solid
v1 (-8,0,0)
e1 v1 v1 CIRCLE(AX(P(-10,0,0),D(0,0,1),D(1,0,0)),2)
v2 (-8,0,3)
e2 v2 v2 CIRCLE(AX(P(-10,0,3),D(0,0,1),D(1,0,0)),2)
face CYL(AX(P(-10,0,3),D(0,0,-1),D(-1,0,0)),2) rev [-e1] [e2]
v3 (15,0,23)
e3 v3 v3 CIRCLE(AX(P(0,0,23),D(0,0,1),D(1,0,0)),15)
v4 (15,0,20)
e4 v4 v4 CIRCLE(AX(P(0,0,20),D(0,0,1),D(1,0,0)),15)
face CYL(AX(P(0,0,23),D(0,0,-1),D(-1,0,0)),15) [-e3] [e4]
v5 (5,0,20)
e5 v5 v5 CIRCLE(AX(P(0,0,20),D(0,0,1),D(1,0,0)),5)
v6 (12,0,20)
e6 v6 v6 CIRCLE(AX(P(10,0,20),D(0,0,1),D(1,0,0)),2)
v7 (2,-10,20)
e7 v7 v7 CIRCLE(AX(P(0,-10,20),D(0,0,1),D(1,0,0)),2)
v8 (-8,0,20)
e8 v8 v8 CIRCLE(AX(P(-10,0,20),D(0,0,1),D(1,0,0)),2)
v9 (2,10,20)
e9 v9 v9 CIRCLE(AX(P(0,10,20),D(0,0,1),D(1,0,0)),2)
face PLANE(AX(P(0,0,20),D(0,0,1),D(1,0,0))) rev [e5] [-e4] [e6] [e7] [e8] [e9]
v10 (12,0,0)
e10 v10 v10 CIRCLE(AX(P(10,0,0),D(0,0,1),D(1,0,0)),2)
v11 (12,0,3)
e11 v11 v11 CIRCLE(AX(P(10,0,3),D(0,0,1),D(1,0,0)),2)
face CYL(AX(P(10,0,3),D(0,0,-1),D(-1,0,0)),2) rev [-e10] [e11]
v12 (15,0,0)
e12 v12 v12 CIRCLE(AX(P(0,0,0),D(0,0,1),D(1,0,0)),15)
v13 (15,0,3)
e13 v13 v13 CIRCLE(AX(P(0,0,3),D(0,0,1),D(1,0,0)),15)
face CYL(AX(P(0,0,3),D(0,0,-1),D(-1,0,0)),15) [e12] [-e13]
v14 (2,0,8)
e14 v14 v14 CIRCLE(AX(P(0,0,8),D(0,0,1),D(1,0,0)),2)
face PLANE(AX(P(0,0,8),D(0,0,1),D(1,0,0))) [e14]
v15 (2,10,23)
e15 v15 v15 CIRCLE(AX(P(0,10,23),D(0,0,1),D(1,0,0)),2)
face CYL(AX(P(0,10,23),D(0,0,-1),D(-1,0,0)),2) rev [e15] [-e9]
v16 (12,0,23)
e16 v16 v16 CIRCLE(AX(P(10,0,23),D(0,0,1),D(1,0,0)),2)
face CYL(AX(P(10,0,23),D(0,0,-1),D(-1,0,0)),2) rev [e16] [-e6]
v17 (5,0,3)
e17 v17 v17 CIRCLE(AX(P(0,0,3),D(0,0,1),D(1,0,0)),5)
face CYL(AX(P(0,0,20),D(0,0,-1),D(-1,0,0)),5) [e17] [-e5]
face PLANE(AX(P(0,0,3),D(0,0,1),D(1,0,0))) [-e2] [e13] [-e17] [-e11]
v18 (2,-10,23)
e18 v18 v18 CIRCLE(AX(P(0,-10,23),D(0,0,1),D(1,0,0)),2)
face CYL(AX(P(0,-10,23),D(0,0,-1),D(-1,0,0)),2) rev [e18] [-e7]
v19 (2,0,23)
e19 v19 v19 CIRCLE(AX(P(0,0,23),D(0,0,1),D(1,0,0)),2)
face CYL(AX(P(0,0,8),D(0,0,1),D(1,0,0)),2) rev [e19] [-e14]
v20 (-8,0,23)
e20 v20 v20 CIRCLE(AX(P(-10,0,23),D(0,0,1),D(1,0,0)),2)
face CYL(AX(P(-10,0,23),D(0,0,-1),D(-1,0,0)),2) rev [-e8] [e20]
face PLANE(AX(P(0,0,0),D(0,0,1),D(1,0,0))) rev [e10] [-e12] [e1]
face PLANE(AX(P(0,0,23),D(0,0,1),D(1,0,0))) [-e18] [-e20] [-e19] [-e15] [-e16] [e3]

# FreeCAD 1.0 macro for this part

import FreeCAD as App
import Part
import Sketcher
Q = App.Units.Quantity

doc = App.newDocument("Part")
body = doc.addObject("PartDesign::Body", "Body")

# Sketch on XY plane
sketch1 = doc.addObject("Sketcher::SketchObject", "Sketch")
body.addObject(sketch1)
sketch1.AttachmentSupport = (doc.XY_Plane, [""])
sketch1.MapMode = "FlatFace"
sketch1.addGeometry(Part.Circle(App.Vector(0, 0, 0), App.Vector(0, 0, 1), 15), False)
sketch1.addGeometry(Part.Circle(App.Vector(-10, 0, 0), App.Vector(0, 0, 1), 2), False)
sketch1.addGeometry(Part.Circle(App.Vector(10, 0, 0), App.Vector(0, 0, 1), 2), False)
sketch1.addConstraint(Sketcher.Constraint("Coincident", 0, 3, -1, 1))
sketch1.addConstraint(Sketcher.Constraint("Equal", 1, 2))
sketch1.addConstraint(Sketcher.Constraint("Symmetric", 1, 3, 2, 3, -1, 1))
sketch1.addConstraint(Sketcher.Constraint("PointOnObject", 1, 3, -1))
sketch1.addConstraint(Sketcher.Constraint("Diameter", 0, Q("30 mm")))
sketch1.addConstraint(Sketcher.Constraint("Diameter", 1, Q("4 mm")))
sketch1.addConstraint(Sketcher.Constraint("DistanceX", 1, 3, -1, 1, Q("10 mm")))
pad1 = doc.addObject("PartDesign::Pad", "Pad")
body.addObject(pad1)
pad1.Profile = sketch1
pad1.Length = 3

# Sketch on XY plane
sketch2 = doc.addObject("Sketcher::SketchObject", "Sketch001")
body.addObject(sketch2)
sketch2.AttachmentSupport = (doc.XY_Plane, [""])
sketch2.MapMode = "FlatFace"
sketch2.AttachmentOffset = App.Placement(App.Vector(0, 0, 3), App.Rotation())
sketch2.addGeometry(Part.Circle(App.Vector(0, 0, 0), App.Vector(0, 0, 1), 5), False)
sketch2.addConstraint(Sketcher.Constraint("Coincident", 0, 3, -1, 1))
sketch2.addConstraint(Sketcher.Constraint("Diameter", 0, Q("10 mm")))
pad2 = doc.addObject("PartDesign::Pad", "Pad001")
body.addObject(pad2)
pad2.Profile = sketch2
pad2.Length = 17

# Sketch on XY plane
sketch3 = doc.addObject("Sketcher::SketchObject", "Sketch002")
body.addObject(sketch3)
sketch3.AttachmentSupport = (doc.XY_Plane, [""])
sketch3.MapMode = "FlatFace"
sketch3.AttachmentOffset = App.Placement(App.Vector(0, 0, 20), App.Rotation())
sketch3.addGeometry(Part.Circle(App.Vector(0, 0, 0), App.Vector(0, 0, 1), 15), False)
sketch3.addGeometry(Part.Circle(App.Vector(0, -10, 0), App.Vector(0, 0, 1), 2), False)
sketch3.addGeometry(Part.Circle(App.Vector(-10, 0, 0), App.Vector(0, 0, 1), 2), False)
sketch3.addGeometry(Part.Circle(App.Vector(10, 0, 0), App.Vector(0, 0, 1), 2), False)
sketch3.addGeometry(Part.Circle(App.Vector(0, 10, 0), App.Vector(0, 0, 1), 2), False)
sketch3.addConstraint(Sketcher.Constraint("Coincident", 0, 3, -1, 1))
sketch3.addConstraint(Sketcher.Constraint("Equal", 1, 2))
sketch3.addConstraint(Sketcher.Constraint("Equal", 2, 3))
sketch3.addConstraint(Sketcher.Constraint("Equal", 3, 4))
sketch3.addConstraint(Sketcher.Constraint("Symmetric", 2, 3, 3, 3, -1, 1))
sketch3.addConstraint(Sketcher.Constraint("Symmetric", 1, 3, 4, 3, -1, 1))
sketch3.addConstraint(Sketcher.Constraint("PointOnObject", 1, 3, -2))
sketch3.addConstraint(Sketcher.Constraint("PointOnObject", 2, 3, -1))
sketch3.addConstraint(Sketcher.Constraint("Diameter", 0, Q("30 mm")))
sketch3.addConstraint(Sketcher.Constraint("Diameter", 1, Q("4 mm")))
sketch3.addConstraint(Sketcher.Constraint("DistanceY", 1, 3, -1, 1, Q("10 mm")))
sketch3.addConstraint(Sketcher.Constraint("DistanceX", 2, 3, -1, 1, Q("10 mm")))
pad3 = doc.addObject("PartDesign::Pad", "Pad002")
body.addObject(pad3)
pad3.Profile = sketch3
pad3.Length = 3

# Sketch on XY plane
sketch4 = doc.addObject("Sketcher::SketchObject", "Sketch003")
body.addObject(sketch4)
sketch4.AttachmentSupport = (doc.XY_Plane, [""])
sketch4.MapMode = "FlatFace"
sketch4.AttachmentOffset = App.Placement(App.Vector(0, 0, 23), App.Rotation())
sketch4.addGeometry(Part.Circle(App.Vector(0, 0, 0), App.Vector(0, 0, 1), 2), False)
sketch4.addConstraint(Sketcher.Constraint("Coincident", 0, 3, -1, 1))
sketch4.addConstraint(Sketcher.Constraint("Diameter", 0, Q("4 mm")))
pocket1 = doc.addObject("PartDesign::Pocket", "Pocket")
body.addObject(pocket1)
pocket1.Profile = sketch4
pocket1.Length = 15

doc.recompute()
